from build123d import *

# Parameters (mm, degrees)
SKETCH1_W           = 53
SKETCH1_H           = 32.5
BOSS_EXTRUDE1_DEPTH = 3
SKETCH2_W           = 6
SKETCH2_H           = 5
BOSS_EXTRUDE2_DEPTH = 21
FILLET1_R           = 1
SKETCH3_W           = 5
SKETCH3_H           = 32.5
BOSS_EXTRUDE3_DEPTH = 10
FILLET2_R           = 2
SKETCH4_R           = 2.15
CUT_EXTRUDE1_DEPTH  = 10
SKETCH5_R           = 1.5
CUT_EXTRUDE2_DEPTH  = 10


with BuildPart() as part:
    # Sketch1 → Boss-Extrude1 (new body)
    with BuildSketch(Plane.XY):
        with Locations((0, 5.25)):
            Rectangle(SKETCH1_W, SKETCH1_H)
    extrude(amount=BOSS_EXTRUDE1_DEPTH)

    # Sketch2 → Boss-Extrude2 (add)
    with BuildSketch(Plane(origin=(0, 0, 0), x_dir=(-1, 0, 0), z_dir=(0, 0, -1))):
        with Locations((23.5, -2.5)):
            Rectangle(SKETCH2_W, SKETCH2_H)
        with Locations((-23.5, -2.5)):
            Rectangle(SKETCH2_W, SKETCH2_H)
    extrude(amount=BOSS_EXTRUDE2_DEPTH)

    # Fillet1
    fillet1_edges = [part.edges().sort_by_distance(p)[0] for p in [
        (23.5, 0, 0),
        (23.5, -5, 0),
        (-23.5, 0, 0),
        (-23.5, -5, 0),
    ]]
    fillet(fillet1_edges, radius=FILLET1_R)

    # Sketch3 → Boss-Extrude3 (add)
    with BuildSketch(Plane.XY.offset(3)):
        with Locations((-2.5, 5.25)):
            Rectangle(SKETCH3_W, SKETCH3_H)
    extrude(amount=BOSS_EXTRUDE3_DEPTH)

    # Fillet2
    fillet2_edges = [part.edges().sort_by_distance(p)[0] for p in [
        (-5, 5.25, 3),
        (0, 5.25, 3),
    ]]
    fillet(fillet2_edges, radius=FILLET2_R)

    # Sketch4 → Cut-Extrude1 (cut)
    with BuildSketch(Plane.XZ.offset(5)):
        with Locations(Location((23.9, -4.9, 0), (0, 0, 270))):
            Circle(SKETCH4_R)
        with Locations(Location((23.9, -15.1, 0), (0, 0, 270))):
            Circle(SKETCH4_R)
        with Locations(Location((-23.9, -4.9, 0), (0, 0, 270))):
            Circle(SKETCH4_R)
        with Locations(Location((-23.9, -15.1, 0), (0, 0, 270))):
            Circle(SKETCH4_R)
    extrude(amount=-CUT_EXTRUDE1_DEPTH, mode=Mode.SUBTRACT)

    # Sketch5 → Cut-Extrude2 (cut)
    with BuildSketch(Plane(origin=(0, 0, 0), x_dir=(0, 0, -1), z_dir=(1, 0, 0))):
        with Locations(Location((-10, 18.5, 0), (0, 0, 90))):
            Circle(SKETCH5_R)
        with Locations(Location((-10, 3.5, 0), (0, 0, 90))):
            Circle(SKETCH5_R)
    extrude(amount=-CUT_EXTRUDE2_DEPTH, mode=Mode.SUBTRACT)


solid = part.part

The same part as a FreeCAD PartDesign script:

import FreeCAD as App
import Part
import Sketcher
from FreeCAD import Vector


def edges_at(feature, points):
    """Names of the edges that pass closest to the given points."""
    edges = feature.Shape.Edges
    near = lambda p: min(range(len(edges)), key=lambda i: edges[i].distToShape(Part.Vertex(*p))[0])
    return sorted({f"Edge{near(p) + 1}" for p in points})

doc = App.newDocument("Part")
body = doc.addObject("PartDesign::Body", "Body")

# Sketch on XY plane
sketch1 = body.newObject("Sketcher::SketchObject", "Sketch")
sketch1.AttachmentSupport = (doc.getObject("XY_Plane"), [""])
sketch1.MapMode = "FlatFace"
sketch1.addGeometry(Part.LineSegment(Vector(-26, 22, 0), Vector(-26, -11, 0)), False)
sketch1.addGeometry(Part.LineSegment(Vector(-26, -11, 0), Vector(26, -11, 0)), False)
sketch1.addGeometry(Part.LineSegment(Vector(26, -11, 0), Vector(26, 22, 0)), False)
sketch1.addGeometry(Part.LineSegment(Vector(26, 22, 0), Vector(-26, 22, 0)), False)
sketch1.addConstraint(Sketcher.Constraint("Coincident", 0, 2, 1, 1))
sketch1.addConstraint(Sketcher.Constraint("Coincident", 1, 2, 2, 1))
sketch1.addConstraint(Sketcher.Constraint("Coincident", 2, 2, 3, 1))
sketch1.addConstraint(Sketcher.Constraint("Coincident", 3, 2, 0, 1))
sketch1.addConstraint(Sketcher.Constraint("Vertical", 0))
sketch1.addConstraint(Sketcher.Constraint("Horizontal", 1))
sketch1.addConstraint(Sketcher.Constraint("Vertical", 2))
sketch1.addConstraint(Sketcher.Constraint("Horizontal", 3))
sketch1.addConstraint(Sketcher.Constraint("DistanceX", 1, 1, 1, 2, 53.0))
sketch1.addConstraint(Sketcher.Constraint("DistanceY", 0, 2, 0, 1, 32.5))
sketch1.addConstraint(Sketcher.Constraint("DistanceY", 0, 2, -1, 1, 11.0))
sketch1.addConstraint(Sketcher.Constraint("DistanceX", 0, 2, -1, 1, 26.5))
pad1 = body.newObject("PartDesign::Pad", "Pad")
pad1.Profile = sketch1
pad1.Length = 3

# Sketch on XY plane
sketch2 = body.newObject("Sketcher::SketchObject", "Sketch001")
sketch2.AttachmentSupport = (doc.getObject("XY_Plane"), [""])
sketch2.MapMode = "FlatFace"
sketch2.addGeometry(Part.LineSegment(Vector(-20, 0, 0), Vector(-20, -5, 0)), False)
sketch2.addGeometry(Part.LineSegment(Vector(-20, -5, 0), Vector(-26, -5, 0)), False)
sketch2.addGeometry(Part.LineSegment(Vector(-26, -5, 0), Vector(-26, 0, 0)), False)
sketch2.addGeometry(Part.LineSegment(Vector(-26, 0, 0), Vector(-20, 0, 0)), False)
sketch2.addGeometry(Part.LineSegment(Vector(26, 0, 0), Vector(26, -5, 0)), False)
sketch2.addGeometry(Part.LineSegment(Vector(26, -5, 0), Vector(20, -5, 0)), False)
sketch2.addGeometry(Part.LineSegment(Vector(20, -5, 0), Vector(20, 0, 0)), False)
sketch2.addGeometry(Part.LineSegment(Vector(20, 0, 0), Vector(26, 0, 0)), False)
sketch2.addConstraint(Sketcher.Constraint("Coincident", 0, 2, 1, 1))
sketch2.addConstraint(Sketcher.Constraint("Coincident", 1, 2, 2, 1))
sketch2.addConstraint(Sketcher.Constraint("Coincident", 2, 2, 3, 1))
sketch2.addConstraint(Sketcher.Constraint("Coincident", 3, 2, 0, 1))
sketch2.addConstraint(Sketcher.Constraint("Coincident", 4, 2, 5, 1))
sketch2.addConstraint(Sketcher.Constraint("Coincident", 5, 2, 6, 1))
sketch2.addConstraint(Sketcher.Constraint("Coincident", 6, 2, 7, 1))
sketch2.addConstraint(Sketcher.Constraint("Coincident", 7, 2, 4, 1))
sketch2.addConstraint(Sketcher.Constraint("Vertical", 0))
sketch2.addConstraint(Sketcher.Constraint("Horizontal", 1))
sketch2.addConstraint(Sketcher.Constraint("Vertical", 2))
sketch2.addConstraint(Sketcher.Constraint("Horizontal", 3))
sketch2.addConstraint(Sketcher.Constraint("Vertical", 4))
sketch2.addConstraint(Sketcher.Constraint("Horizontal", 5))
sketch2.addConstraint(Sketcher.Constraint("Vertical", 6))
sketch2.addConstraint(Sketcher.Constraint("Horizontal", 7))
sketch2.addConstraint(Sketcher.Constraint("Symmetric", 3, 2, 6, 2, -1, 1))
sketch2.addConstraint(Sketcher.Constraint("Symmetric", 1, 2, 4, 2, -2))
sketch2.addConstraint(Sketcher.Constraint("PointOnObject", 2, 2, -1))
sketch2.addConstraint(Sketcher.Constraint("DistanceX", 1, 2, 1, 1, 6.0))
sketch2.addConstraint(Sketcher.Constraint("DistanceY", 0, 2, 0, 1, 5.0))
sketch2.addConstraint(Sketcher.Constraint("DistanceX", 0, 2, 4, 2, 47.0))
pad2 = body.newObject("PartDesign::Pad", "Pad001")
pad2.Profile = sketch2
pad2.Length = 21
pad2.Reversed = True
doc.recompute()

fillet = body.newObject("PartDesign::Fillet", "Fillet")
fillet.Base = (pad2, edges_at(pad2, [
    (23.5, 0, 0),
    (23.5, -5, 0),
    (-23.5, 0, 0),
    (-23.5, -5, 0),
]))
fillet.Radius = 1

# Sketch on XY plane
sketch3 = body.newObject("Sketcher::SketchObject", "Sketch002")
sketch3.AttachmentSupport = (doc.getObject("XY_Plane"), [""])
sketch3.MapMode = "FlatFace"
sketch3.AttachmentOffset = App.Placement(Vector(0, 0, 3), App.Rotation())
sketch3.addGeometry(Part.LineSegment(Vector(-5, 22, 0), Vector(-5, -11, 0)), False)
sketch3.addGeometry(Part.LineSegment(Vector(-5, -11, 0), Vector(0, -11, 0)), False)
sketch3.addGeometry(Part.LineSegment(Vector(0, -11, 0), Vector(0, 22, 0)), False)
sketch3.addGeometry(Part.LineSegment(Vector(0, 22, 0), Vector(-5, 22, 0)), False)
sketch3.addConstraint(Sketcher.Constraint("Coincident", 0, 2, 1, 1))
sketch3.addConstraint(Sketcher.Constraint("Coincident", 1, 2, 2, 1))
sketch3.addConstraint(Sketcher.Constraint("Coincident", 2, 2, 3, 1))
sketch3.addConstraint(Sketcher.Constraint("Coincident", 3, 2, 0, 1))
sketch3.addConstraint(Sketcher.Constraint("Vertical", 0))
sketch3.addConstraint(Sketcher.Constraint("Horizontal", 1))
sketch3.addConstraint(Sketcher.Constraint("Vertical", 2))
sketch3.addConstraint(Sketcher.Constraint("Horizontal", 3))
sketch3.addConstraint(Sketcher.Constraint("PointOnObject", 1, 2, -2))
sketch3.addConstraint(Sketcher.Constraint("DistanceX", 1, 1, 1, 2, 5.0))
sketch3.addConstraint(Sketcher.Constraint("DistanceY", 0, 2, 0, 1, 32.5))
sketch3.addConstraint(Sketcher.Constraint("DistanceY", 0, 2, -1, 1, 11.0))
pad3 = body.newObject("PartDesign::Pad", "Pad002")
pad3.Profile = sketch3
pad3.Length = 10
doc.recompute()

fillet2 = body.newObject("PartDesign::Fillet", "Fillet001")
fillet2.Base = (pad3, edges_at(pad3, [(-5, 5.25, 3), (0, 5.25, 3)]))
fillet2.Radius = 2

# Sketch on XZ plane
sketch4 = body.newObject("Sketcher::SketchObject", "Sketch003")
sketch4.AttachmentSupport = (doc.getObject("XZ_Plane"), [""])
sketch4.MapMode = "FlatFace"
sketch4.AttachmentOffset = App.Placement(Vector(0, 0, 5), App.Rotation())
sketch4.addGeometry(Part.Circle(Vector(23.9, -4.9, 0), Vector(0, 0, 1), 2.1), False)
sketch4.addGeometry(Part.Circle(Vector(23.9, -15.1, 0), Vector(0, 0, 1), 2.1), False)
sketch4.addGeometry(Part.Circle(Vector(-23.9, -4.9, 0), Vector(0, 0, 1), 2.1), False)
sketch4.addGeometry(Part.Circle(Vector(-23.9, -15.1, 0), Vector(0, 0, 1), 2.1), False)
sketch4.addConstraint(Sketcher.Constraint("Equal", 0, 1))
sketch4.addConstraint(Sketcher.Constraint("Equal", 1, 2))
sketch4.addConstraint(Sketcher.Constraint("Equal", 2, 3))
sketch4.addConstraint(Sketcher.Constraint("Symmetric", 0, 3, 2, 3, -2))
sketch4.addConstraint(Sketcher.Constraint("Symmetric", 1, 3, 3, 3, -2))
sketch4.addConstraint(Sketcher.Constraint("Vertical", 0, 3, 1, 3))
sketch4.addConstraint(Sketcher.Constraint("Diameter", 0, 4.3))
sketch4.addConstraint(Sketcher.Constraint("DistanceX", -1, 1, 0, 3, 23.9))
sketch4.addConstraint(Sketcher.Constraint("DistanceY", 0, 3, -1, 1, 4.9))
sketch4.addConstraint(Sketcher.Constraint("DistanceY", 1, 3, -1, 1, 15.1))
pocket1 = body.newObject("PartDesign::Pocket", "Pocket")
pocket1.Profile = sketch4
pocket1.Length = 10

# Sketch on YZ plane
sketch5 = body.newObject("Sketcher::SketchObject", "Sketch004")
sketch5.AttachmentSupport = (doc.getObject("YZ_Plane"), [""])
sketch5.MapMode = "FlatFace"
sketch5.addGeometry(Part.Circle(Vector(18.5, 10, 0), Vector(0, 0, 1), 1.5), False)
sketch5.addGeometry(Part.Circle(Vector(3.5, 10, 0), Vector(0, 0, 1), 1.5), False)
sketch5.addConstraint(Sketcher.Constraint("Equal", 0, 1))
sketch5.addConstraint(Sketcher.Constraint("Horizontal", 0, 3, 1, 3))
sketch5.addConstraint(Sketcher.Constraint("Diameter", 0, 3.0))
sketch5.addConstraint(Sketcher.Constraint("DistanceY", -1, 1, 0, 3, 10.0))
sketch5.addConstraint(Sketcher.Constraint("DistanceX", 1, 3, 0, 3, 15.0))
sketch5.addConstraint(Sketcher.Constraint("DistanceX", -1, 1, 0, 3, 18.5))
pocket2 = body.newObject("PartDesign::Pocket", "Pocket001")
pocket2.Profile = sketch5
pocket2.Length = 10

doc.recompute()
